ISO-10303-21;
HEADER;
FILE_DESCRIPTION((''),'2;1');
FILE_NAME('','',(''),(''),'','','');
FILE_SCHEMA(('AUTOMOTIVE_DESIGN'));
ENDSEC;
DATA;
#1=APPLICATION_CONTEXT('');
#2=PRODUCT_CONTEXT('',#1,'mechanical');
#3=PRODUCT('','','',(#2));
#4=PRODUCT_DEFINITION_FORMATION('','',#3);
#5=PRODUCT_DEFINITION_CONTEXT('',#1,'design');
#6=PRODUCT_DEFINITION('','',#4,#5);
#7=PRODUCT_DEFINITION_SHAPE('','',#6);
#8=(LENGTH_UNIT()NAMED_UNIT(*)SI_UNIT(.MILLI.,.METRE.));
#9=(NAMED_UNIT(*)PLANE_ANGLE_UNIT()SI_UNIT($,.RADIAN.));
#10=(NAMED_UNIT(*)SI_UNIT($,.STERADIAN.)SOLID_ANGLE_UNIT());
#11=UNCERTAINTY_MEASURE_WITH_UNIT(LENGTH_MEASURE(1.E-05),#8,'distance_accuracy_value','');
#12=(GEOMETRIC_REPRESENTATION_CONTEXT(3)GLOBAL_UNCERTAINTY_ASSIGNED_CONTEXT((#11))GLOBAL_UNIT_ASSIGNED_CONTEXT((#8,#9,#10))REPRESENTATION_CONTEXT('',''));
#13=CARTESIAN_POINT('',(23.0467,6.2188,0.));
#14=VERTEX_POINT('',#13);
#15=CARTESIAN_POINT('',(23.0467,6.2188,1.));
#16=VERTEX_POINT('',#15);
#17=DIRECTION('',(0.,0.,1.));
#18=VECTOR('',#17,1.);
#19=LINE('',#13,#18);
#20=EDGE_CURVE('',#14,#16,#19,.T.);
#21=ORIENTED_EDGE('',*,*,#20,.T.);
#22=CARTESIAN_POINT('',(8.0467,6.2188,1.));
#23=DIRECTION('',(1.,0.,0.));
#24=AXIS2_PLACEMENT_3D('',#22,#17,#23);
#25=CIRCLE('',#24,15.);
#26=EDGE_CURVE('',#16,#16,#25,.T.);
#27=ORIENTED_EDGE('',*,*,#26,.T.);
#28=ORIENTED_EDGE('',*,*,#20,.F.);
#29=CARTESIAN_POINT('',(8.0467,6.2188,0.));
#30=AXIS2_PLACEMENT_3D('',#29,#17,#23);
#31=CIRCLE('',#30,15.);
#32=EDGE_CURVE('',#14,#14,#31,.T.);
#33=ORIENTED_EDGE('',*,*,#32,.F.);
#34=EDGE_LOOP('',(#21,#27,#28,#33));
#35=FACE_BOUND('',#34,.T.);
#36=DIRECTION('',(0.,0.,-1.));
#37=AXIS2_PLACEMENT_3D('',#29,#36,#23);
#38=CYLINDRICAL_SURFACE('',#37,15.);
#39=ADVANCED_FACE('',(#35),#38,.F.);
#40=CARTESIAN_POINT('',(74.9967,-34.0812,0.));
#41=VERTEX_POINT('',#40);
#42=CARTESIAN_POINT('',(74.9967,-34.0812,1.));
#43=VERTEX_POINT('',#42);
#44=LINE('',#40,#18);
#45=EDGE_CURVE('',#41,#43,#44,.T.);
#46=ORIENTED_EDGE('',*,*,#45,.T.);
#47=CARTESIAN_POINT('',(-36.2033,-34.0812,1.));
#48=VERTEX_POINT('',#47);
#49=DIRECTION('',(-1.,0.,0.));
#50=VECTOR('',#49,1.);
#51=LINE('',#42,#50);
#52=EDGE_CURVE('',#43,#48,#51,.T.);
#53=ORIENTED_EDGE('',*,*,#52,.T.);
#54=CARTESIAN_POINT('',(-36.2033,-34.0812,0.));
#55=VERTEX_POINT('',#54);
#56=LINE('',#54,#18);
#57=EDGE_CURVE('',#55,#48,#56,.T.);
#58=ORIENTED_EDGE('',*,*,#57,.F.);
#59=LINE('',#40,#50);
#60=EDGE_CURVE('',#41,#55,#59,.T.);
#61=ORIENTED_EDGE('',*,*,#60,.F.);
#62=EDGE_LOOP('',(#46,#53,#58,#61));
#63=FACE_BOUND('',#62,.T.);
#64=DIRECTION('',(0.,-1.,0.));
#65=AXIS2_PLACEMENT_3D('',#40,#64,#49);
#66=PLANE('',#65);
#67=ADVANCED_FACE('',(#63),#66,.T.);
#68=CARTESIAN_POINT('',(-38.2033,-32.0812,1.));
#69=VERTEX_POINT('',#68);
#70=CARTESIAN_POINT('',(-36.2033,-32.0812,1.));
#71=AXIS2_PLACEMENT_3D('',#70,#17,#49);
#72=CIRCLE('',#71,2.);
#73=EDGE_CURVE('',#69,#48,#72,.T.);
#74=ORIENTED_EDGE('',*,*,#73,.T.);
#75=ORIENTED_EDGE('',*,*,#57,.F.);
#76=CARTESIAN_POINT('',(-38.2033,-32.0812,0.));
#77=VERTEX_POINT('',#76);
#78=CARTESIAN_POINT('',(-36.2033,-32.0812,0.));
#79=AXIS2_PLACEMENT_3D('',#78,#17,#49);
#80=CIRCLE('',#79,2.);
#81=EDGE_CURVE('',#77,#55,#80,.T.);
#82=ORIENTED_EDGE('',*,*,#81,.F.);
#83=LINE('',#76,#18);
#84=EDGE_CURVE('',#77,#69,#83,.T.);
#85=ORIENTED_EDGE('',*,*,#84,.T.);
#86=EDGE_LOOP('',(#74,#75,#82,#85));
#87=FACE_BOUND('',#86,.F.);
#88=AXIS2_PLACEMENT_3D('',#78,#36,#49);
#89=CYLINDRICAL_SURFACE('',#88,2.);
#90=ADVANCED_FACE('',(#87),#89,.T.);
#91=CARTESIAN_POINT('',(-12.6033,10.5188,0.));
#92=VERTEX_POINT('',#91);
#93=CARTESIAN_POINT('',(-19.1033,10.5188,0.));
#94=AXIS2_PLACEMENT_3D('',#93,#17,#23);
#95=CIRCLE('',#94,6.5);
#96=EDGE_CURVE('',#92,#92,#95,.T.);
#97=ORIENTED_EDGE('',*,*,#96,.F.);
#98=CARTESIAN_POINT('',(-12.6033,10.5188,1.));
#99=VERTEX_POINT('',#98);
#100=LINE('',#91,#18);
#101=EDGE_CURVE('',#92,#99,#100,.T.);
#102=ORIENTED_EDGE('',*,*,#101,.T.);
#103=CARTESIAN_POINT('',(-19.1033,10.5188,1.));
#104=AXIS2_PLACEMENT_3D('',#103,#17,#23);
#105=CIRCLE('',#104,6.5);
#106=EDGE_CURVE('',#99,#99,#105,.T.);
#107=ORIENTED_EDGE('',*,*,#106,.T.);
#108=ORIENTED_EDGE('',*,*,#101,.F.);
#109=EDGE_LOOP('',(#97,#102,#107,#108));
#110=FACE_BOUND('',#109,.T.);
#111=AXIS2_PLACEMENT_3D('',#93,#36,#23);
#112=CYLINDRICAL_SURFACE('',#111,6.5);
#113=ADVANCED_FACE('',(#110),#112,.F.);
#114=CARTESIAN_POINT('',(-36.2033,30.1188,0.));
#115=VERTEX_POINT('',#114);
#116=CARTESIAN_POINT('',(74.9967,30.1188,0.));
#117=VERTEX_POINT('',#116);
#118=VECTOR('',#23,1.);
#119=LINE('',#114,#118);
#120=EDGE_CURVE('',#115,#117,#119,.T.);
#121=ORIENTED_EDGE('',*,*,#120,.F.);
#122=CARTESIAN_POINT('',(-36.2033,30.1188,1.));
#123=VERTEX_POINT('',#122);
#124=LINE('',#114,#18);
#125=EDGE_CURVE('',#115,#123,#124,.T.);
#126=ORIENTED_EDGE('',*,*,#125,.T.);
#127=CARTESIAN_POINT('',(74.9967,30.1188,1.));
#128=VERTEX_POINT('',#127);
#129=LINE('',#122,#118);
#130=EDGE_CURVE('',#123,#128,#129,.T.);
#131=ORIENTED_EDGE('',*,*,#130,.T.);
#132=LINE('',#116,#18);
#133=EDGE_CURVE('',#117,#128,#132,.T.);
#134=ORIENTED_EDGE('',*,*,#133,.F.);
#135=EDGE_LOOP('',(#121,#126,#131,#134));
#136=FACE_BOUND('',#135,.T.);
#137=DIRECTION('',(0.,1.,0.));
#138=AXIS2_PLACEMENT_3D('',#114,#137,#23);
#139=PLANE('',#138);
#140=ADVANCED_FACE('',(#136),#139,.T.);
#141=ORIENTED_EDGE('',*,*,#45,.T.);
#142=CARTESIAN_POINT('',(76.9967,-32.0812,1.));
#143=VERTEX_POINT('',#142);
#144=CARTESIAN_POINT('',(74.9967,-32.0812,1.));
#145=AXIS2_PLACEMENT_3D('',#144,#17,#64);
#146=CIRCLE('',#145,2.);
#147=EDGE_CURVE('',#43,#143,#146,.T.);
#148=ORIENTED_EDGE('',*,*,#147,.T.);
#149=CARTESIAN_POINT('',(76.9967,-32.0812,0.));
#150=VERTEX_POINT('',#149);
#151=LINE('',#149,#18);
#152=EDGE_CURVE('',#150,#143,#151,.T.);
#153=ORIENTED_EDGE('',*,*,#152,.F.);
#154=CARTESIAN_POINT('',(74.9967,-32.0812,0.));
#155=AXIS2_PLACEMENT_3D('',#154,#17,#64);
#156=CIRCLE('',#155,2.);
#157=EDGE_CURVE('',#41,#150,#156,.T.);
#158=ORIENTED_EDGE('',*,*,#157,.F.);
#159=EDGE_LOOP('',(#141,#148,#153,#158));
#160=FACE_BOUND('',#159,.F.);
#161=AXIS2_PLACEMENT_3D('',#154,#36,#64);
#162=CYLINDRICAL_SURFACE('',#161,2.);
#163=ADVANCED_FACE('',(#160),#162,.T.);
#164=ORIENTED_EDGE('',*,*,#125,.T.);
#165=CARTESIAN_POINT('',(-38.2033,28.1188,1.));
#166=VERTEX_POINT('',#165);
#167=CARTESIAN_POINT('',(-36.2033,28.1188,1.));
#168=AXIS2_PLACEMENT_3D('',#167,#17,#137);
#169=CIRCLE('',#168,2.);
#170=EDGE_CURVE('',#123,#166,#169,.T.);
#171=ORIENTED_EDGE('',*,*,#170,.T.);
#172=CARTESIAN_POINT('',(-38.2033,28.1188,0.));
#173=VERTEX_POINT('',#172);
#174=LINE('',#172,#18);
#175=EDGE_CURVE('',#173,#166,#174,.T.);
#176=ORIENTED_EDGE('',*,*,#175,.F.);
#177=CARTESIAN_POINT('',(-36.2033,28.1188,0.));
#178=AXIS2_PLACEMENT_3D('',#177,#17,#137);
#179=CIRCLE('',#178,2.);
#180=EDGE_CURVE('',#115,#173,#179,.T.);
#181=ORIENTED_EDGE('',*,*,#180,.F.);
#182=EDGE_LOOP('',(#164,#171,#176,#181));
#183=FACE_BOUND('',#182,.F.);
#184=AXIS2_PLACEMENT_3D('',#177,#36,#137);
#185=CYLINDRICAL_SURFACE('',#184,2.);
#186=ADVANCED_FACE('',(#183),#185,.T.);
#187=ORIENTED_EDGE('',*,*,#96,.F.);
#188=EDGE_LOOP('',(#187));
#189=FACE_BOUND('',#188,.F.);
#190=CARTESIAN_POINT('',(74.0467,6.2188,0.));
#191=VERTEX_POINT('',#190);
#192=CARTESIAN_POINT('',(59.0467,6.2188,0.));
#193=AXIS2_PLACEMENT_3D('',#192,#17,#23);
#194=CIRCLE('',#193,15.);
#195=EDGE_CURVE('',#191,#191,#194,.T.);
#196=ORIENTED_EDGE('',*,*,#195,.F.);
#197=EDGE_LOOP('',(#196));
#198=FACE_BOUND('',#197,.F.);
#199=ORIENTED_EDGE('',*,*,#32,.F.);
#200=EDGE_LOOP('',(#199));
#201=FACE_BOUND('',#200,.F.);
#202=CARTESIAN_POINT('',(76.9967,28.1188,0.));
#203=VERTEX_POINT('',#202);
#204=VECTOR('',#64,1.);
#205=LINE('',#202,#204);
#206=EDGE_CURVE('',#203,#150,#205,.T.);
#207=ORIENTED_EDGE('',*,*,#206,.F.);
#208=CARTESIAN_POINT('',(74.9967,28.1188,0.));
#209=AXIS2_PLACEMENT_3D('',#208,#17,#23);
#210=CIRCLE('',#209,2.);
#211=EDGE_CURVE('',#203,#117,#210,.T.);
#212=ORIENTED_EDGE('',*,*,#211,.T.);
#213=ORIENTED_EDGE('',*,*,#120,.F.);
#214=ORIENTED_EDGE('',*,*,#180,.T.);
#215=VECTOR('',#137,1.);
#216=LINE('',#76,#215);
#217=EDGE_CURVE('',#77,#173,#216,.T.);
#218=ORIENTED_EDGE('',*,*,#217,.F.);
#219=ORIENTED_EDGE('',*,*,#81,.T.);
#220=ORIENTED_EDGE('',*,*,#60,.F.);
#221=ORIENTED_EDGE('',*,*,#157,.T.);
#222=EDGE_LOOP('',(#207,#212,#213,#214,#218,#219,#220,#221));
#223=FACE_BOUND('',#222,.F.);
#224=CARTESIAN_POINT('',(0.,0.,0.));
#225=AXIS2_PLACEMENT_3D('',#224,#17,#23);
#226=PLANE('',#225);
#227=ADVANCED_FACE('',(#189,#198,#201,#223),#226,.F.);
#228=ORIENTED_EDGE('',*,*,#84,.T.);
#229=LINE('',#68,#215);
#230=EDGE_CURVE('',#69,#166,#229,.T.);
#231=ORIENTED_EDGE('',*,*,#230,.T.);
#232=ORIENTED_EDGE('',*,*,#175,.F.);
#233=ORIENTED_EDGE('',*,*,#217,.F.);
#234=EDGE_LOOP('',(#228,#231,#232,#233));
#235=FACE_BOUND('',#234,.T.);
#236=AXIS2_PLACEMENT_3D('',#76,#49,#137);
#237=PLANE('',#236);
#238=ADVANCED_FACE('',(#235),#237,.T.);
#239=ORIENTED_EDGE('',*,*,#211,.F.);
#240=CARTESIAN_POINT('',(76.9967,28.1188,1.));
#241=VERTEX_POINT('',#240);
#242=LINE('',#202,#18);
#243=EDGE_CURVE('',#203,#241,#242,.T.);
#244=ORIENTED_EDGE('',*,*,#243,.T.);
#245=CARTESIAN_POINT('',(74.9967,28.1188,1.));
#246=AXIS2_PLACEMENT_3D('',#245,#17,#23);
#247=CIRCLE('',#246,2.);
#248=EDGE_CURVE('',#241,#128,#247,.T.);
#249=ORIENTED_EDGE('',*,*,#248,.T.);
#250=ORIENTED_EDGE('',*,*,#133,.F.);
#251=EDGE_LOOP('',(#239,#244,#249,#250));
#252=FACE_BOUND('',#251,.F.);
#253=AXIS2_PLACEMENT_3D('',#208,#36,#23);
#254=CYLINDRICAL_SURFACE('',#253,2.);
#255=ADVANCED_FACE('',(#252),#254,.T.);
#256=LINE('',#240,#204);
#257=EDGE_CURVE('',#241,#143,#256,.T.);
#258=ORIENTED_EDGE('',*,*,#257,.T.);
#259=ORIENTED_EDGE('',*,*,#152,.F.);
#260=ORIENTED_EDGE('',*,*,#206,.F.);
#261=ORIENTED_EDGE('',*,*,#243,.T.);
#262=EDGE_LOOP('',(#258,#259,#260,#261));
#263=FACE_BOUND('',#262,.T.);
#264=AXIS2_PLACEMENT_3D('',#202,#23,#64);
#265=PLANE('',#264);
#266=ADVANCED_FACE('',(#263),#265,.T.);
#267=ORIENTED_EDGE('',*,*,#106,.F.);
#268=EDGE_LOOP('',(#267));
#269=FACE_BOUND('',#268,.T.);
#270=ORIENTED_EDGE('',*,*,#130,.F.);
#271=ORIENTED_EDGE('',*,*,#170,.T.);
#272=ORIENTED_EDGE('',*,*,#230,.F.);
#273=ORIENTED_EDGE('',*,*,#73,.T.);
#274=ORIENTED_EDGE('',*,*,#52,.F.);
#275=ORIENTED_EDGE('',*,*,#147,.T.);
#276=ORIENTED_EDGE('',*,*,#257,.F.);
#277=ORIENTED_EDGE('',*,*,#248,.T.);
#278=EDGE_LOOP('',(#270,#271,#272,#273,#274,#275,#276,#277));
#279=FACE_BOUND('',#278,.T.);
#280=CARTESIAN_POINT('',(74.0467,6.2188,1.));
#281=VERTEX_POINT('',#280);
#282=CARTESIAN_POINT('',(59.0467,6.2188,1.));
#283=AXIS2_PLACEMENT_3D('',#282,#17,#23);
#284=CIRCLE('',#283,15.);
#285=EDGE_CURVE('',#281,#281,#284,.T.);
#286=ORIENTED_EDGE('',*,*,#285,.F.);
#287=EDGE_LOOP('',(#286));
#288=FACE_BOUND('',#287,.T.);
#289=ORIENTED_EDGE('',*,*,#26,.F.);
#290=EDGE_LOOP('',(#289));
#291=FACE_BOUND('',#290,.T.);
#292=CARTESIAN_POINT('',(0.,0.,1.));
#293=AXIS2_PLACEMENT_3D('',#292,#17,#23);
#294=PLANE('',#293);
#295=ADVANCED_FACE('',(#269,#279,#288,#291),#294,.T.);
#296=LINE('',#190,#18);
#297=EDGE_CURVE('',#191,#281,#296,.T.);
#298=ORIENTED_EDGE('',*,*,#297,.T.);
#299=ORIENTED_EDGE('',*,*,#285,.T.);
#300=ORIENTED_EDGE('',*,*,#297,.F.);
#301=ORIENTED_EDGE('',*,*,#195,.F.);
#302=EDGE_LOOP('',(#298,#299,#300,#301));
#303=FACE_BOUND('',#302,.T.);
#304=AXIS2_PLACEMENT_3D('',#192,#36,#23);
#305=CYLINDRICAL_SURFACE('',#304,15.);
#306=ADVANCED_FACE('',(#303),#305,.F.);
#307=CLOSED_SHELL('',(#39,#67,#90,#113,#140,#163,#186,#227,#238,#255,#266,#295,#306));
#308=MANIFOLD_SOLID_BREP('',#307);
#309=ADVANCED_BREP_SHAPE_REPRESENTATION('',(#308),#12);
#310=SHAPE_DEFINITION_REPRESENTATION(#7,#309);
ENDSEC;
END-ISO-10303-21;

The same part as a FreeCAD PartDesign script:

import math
import FreeCAD as App
import Part
import Sketcher
from FreeCAD import Vector
Q = App.Units.Quantity

doc = App.newDocument("Part")
body = doc.addObject("PartDesign::Body", "Body")

# Sketch on XY plane
sketch1 = body.newObject("Sketcher::SketchObject", "Sketch")
sketch1.AttachmentSupport = (doc.getObject("XY_Plane"), [""])
sketch1.MapMode = "FlatFace"
sketch1.addGeometry(Part.LineSegment(Vector(-36.2, -34.1, 0), Vector(75, -34.1, 0)), False)
sketch1.addGeometry(Part.ArcOfCircle(Part.Circle(Vector(75, -32.1, 0), Vector(0, 0, 1), 2), math.radians(-90), math.radians(0)), False)
sketch1.addGeometry(Part.LineSegment(Vector(77, -32.1, 0), Vector(77, 28.1, 0)), False)
sketch1.addGeometry(Part.ArcOfCircle(Part.Circle(Vector(75, 28.1, 0), Vector(0, 0, 1), 2), math.radians(0), math.radians(90)), False)
sketch1.addGeometry(Part.LineSegment(Vector(75, 30.1, 0), Vector(-36.2, 30.1, 0)), False)
sketch1.addGeometry(Part.ArcOfCircle(Part.Circle(Vector(-36.2, 28.1, 0), Vector(0, 0, 1), 2), math.radians(90), math.radians(180)), False)
sketch1.addGeometry(Part.LineSegment(Vector(-38.2, 28.1, 0), Vector(-38.2, -32.1, 0)), False)
sketch1.addGeometry(Part.ArcOfCircle(Part.Circle(Vector(-36.2, -32.1, 0), Vector(0, 0, 1), 2), math.radians(180), math.radians(270)), False)
sketch1.addGeometry(Part.Circle(Vector(59, 6.2, 0), Vector(0, 0, 1), 15), False)
sketch1.addGeometry(Part.Circle(Vector(-19.1, 10.5, 0), Vector(0, 0, 1), 6.5), False)
sketch1.addGeometry(Part.Circle(Vector(8, 6.2, 0), Vector(0, 0, 1), 15), False)
sketch1.addConstraint(Sketcher.Constraint("Tangent", 0, 2, 1, 1))
sketch1.addConstraint(Sketcher.Constraint("Tangent", 1, 2, 2, 1))
sketch1.addConstraint(Sketcher.Constraint("Tangent", 2, 2, 3, 1))
sketch1.addConstraint(Sketcher.Constraint("Tangent", 3, 2, 4, 1))
sketch1.addConstraint(Sketcher.Constraint("Tangent", 4, 2, 5, 1))
sketch1.addConstraint(Sketcher.Constraint("Tangent", 5, 2, 6, 1))
sketch1.addConstraint(Sketcher.Constraint("Tangent", 6, 2, 7, 1))
sketch1.addConstraint(Sketcher.Constraint("Tangent", 7, 2, 0, 1))
sketch1.addConstraint(Sketcher.Constraint("Horizontal", 0))
sketch1.addConstraint(Sketcher.Constraint("Vertical", 2))
sketch1.addConstraint(Sketcher.Constraint("Horizontal", 4))
sketch1.addConstraint(Sketcher.Constraint("Vertical", 6))
sketch1.addConstraint(Sketcher.Constraint("Equal", 1, 3))
sketch1.addConstraint(Sketcher.Constraint("Equal", 3, 5))
sketch1.addConstraint(Sketcher.Constraint("Equal", 5, 7))
sketch1.addConstraint(Sketcher.Constraint("Equal", 8, 10))
sketch1.addConstraint(Sketcher.Constraint("Horizontal", 8, 3, 10, 3))
sketch1.addConstraint(Sketcher.Constraint("Diameter", 8, Q("30 mm")))
sketch1.addConstraint(Sketcher.Constraint("Diameter", 9, Q("13 mm")))
sketch1.addConstraint(Sketcher.Constraint("Radius", 1, Q("2 mm")))
sketch1.addConstraint(Sketcher.Constraint("DistanceX", 10, 3, 8, 3, Q("51 mm")))
sketch1.addConstraint(Sketcher.Constraint("DistanceX", 5, 2, 10, 3, Q("46.25 mm")))
sketch1.addConstraint(Sketcher.Constraint("DistanceX", 0, 1, 0, 2, Q("111.2 mm")))
sketch1.addConstraint(Sketcher.Constraint("DistanceY", 2, 1, 2, 2, Q("60.2 mm")))
sketch1.addConstraint(Sketcher.Constraint("DistanceY", 8, 3, 3, 3, Q("21.9 mm")))
sketch1.addConstraint(Sketcher.Constraint("DistanceX", 5, 3, 9, 3, Q("17.1 mm")))
sketch1.addConstraint(Sketcher.Constraint("DistanceY", 9, 3, 5, 3, Q("17.6 mm")))
sketch1.addConstraint(Sketcher.Constraint("DistanceX", -1, 1, 1, 3, Q("74.9967 mm")))
sketch1.addConstraint(Sketcher.Constraint("DistanceY", 1, 3, -1, 1, Q("32.0812 mm")))
pad1 = body.newObject("PartDesign::Pad", "Pad")
pad1.Profile = sketch1
pad1.Length = 1

doc.recompute()
